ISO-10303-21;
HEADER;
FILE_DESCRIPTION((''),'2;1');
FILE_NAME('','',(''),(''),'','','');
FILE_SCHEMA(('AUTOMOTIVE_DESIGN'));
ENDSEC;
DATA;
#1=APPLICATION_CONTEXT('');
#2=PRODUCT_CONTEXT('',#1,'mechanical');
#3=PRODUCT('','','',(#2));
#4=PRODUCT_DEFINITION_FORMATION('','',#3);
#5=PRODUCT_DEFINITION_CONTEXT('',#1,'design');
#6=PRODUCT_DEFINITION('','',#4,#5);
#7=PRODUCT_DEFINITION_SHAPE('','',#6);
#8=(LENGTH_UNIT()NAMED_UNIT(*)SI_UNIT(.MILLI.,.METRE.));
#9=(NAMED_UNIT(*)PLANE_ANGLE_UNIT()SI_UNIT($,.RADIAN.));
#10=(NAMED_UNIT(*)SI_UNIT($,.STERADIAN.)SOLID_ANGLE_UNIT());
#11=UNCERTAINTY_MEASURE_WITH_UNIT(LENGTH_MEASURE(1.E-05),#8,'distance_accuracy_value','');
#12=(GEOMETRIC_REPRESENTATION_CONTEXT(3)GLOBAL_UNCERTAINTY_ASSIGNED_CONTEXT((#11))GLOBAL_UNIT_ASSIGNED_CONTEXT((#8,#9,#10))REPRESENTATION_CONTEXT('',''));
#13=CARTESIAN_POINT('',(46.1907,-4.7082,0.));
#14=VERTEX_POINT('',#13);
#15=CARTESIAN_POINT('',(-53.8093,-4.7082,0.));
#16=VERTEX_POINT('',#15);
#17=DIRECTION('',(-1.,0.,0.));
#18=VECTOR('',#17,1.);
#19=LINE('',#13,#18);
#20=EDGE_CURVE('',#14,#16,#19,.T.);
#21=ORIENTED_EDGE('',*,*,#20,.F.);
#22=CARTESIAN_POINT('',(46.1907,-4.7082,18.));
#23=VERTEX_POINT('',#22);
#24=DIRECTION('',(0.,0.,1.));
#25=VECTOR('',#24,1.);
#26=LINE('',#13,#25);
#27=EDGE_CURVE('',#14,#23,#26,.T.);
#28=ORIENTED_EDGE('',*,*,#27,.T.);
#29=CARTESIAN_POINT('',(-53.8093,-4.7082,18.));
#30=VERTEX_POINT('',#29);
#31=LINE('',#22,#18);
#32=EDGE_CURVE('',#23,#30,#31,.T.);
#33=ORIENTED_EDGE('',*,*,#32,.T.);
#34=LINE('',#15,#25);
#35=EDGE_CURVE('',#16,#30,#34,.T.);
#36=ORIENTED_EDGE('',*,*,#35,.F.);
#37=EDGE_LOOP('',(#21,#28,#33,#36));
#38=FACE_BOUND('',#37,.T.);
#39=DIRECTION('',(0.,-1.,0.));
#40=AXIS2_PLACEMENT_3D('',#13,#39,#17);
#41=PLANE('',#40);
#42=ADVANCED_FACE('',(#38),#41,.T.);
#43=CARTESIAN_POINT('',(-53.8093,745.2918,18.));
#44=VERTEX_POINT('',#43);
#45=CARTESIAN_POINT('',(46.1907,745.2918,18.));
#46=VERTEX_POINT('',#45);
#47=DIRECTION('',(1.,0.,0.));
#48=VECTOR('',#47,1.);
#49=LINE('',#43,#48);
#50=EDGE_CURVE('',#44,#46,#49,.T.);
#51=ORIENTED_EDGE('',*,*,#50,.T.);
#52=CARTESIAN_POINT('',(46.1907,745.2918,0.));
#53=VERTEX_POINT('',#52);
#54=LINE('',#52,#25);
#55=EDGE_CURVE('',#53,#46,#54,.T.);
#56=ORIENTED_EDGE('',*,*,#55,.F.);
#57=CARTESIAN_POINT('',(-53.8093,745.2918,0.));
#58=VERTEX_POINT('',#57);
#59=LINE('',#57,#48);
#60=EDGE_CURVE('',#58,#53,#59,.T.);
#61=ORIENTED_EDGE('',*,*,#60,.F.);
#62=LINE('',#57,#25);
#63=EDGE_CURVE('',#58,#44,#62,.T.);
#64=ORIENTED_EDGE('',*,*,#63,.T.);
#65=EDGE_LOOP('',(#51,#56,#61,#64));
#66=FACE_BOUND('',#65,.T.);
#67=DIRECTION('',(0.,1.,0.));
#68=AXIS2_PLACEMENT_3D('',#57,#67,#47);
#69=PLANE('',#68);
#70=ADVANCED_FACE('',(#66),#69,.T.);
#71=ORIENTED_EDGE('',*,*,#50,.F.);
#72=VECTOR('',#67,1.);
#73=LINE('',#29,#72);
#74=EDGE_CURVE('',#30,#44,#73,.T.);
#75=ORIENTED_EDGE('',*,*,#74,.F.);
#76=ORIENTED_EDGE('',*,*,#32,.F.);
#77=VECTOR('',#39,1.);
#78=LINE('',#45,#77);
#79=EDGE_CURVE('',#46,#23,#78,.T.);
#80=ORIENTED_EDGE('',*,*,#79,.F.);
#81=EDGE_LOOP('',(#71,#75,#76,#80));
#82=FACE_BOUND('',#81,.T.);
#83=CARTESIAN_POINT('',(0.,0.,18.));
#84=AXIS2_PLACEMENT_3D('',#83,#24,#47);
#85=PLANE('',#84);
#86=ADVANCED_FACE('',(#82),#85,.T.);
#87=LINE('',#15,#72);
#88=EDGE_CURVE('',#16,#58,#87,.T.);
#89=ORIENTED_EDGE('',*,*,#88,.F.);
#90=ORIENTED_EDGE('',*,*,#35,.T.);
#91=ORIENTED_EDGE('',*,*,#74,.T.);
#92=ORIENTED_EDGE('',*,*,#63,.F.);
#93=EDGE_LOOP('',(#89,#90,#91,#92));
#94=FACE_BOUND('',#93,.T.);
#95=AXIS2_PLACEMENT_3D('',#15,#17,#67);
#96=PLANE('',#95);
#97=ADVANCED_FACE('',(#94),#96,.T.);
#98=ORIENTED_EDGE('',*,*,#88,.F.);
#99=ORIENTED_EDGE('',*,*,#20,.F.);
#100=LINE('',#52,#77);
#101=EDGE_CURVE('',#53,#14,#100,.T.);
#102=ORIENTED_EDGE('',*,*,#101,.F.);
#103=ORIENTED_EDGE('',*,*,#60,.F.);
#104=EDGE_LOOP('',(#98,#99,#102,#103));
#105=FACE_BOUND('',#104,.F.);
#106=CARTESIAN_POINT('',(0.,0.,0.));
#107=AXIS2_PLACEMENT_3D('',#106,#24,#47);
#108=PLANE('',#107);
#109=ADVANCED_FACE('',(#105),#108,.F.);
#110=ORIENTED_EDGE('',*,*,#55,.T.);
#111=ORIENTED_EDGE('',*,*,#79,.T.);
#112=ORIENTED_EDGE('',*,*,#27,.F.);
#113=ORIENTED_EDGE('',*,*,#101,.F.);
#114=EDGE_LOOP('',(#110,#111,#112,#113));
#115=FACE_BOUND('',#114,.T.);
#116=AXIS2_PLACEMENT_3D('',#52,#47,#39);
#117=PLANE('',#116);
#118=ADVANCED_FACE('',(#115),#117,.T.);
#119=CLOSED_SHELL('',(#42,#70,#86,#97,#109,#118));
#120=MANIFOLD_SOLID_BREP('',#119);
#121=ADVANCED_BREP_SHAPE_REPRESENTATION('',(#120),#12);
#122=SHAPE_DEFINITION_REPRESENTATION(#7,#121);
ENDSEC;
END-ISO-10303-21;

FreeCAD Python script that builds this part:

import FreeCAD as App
import Part
import Sketcher

V = App.Vector

doc = App.newDocument("Part")
body = doc.addObject("PartDesign::Body", "Body")

# Sketch on XY plane
sketch1 = body.newObject("Sketcher::SketchObject", "Sketch")
sketch1.AttachmentSupport = (doc.getObject("XY_Plane"), [""])
sketch1.MapMode = "FlatFace"
sketch1.addGeometry([
    Part.LineSegment(V(46, 745, 0), V(-54, 745, 0)),
    Part.LineSegment(V(-54, 745, 0), V(-54, -5, 0)),
    Part.LineSegment(V(-54, -5, 0), V(46, -5, 0)),
    Part.LineSegment(V(46, -5, 0), V(46, 745, 0)),
], False)
sketch1.addConstraint([
    Sketcher.Constraint("Coincident", 0, 2, 1, 1),
    Sketcher.Constraint("Coincident", 1, 2, 2, 1),
    Sketcher.Constraint("Coincident", 2, 2, 3, 1),
    Sketcher.Constraint("Coincident", 3, 2, 0, 1),
    Sketcher.Constraint("Horizontal", 0),
    Sketcher.Constraint("Vertical", 1),
    Sketcher.Constraint("Horizontal", 2),
    Sketcher.Constraint("Vertical", 3),
    Sketcher.Constraint("DistanceX", 0, 2, 0, 1, 100.0),
    Sketcher.Constraint("DistanceY", 1, 2, 1, 1, 750.0),
    Sketcher.Constraint("DistanceX", 0, 2, -1, 1, 53.8093),
    Sketcher.Constraint("DistanceY", -1, 1, 0, 2, 745.2918),
])
pad1 = body.newObject("PartDesign::Pad", "Pad")
pad1.Profile = sketch1
pad1.Length = 18

doc.recompute()
